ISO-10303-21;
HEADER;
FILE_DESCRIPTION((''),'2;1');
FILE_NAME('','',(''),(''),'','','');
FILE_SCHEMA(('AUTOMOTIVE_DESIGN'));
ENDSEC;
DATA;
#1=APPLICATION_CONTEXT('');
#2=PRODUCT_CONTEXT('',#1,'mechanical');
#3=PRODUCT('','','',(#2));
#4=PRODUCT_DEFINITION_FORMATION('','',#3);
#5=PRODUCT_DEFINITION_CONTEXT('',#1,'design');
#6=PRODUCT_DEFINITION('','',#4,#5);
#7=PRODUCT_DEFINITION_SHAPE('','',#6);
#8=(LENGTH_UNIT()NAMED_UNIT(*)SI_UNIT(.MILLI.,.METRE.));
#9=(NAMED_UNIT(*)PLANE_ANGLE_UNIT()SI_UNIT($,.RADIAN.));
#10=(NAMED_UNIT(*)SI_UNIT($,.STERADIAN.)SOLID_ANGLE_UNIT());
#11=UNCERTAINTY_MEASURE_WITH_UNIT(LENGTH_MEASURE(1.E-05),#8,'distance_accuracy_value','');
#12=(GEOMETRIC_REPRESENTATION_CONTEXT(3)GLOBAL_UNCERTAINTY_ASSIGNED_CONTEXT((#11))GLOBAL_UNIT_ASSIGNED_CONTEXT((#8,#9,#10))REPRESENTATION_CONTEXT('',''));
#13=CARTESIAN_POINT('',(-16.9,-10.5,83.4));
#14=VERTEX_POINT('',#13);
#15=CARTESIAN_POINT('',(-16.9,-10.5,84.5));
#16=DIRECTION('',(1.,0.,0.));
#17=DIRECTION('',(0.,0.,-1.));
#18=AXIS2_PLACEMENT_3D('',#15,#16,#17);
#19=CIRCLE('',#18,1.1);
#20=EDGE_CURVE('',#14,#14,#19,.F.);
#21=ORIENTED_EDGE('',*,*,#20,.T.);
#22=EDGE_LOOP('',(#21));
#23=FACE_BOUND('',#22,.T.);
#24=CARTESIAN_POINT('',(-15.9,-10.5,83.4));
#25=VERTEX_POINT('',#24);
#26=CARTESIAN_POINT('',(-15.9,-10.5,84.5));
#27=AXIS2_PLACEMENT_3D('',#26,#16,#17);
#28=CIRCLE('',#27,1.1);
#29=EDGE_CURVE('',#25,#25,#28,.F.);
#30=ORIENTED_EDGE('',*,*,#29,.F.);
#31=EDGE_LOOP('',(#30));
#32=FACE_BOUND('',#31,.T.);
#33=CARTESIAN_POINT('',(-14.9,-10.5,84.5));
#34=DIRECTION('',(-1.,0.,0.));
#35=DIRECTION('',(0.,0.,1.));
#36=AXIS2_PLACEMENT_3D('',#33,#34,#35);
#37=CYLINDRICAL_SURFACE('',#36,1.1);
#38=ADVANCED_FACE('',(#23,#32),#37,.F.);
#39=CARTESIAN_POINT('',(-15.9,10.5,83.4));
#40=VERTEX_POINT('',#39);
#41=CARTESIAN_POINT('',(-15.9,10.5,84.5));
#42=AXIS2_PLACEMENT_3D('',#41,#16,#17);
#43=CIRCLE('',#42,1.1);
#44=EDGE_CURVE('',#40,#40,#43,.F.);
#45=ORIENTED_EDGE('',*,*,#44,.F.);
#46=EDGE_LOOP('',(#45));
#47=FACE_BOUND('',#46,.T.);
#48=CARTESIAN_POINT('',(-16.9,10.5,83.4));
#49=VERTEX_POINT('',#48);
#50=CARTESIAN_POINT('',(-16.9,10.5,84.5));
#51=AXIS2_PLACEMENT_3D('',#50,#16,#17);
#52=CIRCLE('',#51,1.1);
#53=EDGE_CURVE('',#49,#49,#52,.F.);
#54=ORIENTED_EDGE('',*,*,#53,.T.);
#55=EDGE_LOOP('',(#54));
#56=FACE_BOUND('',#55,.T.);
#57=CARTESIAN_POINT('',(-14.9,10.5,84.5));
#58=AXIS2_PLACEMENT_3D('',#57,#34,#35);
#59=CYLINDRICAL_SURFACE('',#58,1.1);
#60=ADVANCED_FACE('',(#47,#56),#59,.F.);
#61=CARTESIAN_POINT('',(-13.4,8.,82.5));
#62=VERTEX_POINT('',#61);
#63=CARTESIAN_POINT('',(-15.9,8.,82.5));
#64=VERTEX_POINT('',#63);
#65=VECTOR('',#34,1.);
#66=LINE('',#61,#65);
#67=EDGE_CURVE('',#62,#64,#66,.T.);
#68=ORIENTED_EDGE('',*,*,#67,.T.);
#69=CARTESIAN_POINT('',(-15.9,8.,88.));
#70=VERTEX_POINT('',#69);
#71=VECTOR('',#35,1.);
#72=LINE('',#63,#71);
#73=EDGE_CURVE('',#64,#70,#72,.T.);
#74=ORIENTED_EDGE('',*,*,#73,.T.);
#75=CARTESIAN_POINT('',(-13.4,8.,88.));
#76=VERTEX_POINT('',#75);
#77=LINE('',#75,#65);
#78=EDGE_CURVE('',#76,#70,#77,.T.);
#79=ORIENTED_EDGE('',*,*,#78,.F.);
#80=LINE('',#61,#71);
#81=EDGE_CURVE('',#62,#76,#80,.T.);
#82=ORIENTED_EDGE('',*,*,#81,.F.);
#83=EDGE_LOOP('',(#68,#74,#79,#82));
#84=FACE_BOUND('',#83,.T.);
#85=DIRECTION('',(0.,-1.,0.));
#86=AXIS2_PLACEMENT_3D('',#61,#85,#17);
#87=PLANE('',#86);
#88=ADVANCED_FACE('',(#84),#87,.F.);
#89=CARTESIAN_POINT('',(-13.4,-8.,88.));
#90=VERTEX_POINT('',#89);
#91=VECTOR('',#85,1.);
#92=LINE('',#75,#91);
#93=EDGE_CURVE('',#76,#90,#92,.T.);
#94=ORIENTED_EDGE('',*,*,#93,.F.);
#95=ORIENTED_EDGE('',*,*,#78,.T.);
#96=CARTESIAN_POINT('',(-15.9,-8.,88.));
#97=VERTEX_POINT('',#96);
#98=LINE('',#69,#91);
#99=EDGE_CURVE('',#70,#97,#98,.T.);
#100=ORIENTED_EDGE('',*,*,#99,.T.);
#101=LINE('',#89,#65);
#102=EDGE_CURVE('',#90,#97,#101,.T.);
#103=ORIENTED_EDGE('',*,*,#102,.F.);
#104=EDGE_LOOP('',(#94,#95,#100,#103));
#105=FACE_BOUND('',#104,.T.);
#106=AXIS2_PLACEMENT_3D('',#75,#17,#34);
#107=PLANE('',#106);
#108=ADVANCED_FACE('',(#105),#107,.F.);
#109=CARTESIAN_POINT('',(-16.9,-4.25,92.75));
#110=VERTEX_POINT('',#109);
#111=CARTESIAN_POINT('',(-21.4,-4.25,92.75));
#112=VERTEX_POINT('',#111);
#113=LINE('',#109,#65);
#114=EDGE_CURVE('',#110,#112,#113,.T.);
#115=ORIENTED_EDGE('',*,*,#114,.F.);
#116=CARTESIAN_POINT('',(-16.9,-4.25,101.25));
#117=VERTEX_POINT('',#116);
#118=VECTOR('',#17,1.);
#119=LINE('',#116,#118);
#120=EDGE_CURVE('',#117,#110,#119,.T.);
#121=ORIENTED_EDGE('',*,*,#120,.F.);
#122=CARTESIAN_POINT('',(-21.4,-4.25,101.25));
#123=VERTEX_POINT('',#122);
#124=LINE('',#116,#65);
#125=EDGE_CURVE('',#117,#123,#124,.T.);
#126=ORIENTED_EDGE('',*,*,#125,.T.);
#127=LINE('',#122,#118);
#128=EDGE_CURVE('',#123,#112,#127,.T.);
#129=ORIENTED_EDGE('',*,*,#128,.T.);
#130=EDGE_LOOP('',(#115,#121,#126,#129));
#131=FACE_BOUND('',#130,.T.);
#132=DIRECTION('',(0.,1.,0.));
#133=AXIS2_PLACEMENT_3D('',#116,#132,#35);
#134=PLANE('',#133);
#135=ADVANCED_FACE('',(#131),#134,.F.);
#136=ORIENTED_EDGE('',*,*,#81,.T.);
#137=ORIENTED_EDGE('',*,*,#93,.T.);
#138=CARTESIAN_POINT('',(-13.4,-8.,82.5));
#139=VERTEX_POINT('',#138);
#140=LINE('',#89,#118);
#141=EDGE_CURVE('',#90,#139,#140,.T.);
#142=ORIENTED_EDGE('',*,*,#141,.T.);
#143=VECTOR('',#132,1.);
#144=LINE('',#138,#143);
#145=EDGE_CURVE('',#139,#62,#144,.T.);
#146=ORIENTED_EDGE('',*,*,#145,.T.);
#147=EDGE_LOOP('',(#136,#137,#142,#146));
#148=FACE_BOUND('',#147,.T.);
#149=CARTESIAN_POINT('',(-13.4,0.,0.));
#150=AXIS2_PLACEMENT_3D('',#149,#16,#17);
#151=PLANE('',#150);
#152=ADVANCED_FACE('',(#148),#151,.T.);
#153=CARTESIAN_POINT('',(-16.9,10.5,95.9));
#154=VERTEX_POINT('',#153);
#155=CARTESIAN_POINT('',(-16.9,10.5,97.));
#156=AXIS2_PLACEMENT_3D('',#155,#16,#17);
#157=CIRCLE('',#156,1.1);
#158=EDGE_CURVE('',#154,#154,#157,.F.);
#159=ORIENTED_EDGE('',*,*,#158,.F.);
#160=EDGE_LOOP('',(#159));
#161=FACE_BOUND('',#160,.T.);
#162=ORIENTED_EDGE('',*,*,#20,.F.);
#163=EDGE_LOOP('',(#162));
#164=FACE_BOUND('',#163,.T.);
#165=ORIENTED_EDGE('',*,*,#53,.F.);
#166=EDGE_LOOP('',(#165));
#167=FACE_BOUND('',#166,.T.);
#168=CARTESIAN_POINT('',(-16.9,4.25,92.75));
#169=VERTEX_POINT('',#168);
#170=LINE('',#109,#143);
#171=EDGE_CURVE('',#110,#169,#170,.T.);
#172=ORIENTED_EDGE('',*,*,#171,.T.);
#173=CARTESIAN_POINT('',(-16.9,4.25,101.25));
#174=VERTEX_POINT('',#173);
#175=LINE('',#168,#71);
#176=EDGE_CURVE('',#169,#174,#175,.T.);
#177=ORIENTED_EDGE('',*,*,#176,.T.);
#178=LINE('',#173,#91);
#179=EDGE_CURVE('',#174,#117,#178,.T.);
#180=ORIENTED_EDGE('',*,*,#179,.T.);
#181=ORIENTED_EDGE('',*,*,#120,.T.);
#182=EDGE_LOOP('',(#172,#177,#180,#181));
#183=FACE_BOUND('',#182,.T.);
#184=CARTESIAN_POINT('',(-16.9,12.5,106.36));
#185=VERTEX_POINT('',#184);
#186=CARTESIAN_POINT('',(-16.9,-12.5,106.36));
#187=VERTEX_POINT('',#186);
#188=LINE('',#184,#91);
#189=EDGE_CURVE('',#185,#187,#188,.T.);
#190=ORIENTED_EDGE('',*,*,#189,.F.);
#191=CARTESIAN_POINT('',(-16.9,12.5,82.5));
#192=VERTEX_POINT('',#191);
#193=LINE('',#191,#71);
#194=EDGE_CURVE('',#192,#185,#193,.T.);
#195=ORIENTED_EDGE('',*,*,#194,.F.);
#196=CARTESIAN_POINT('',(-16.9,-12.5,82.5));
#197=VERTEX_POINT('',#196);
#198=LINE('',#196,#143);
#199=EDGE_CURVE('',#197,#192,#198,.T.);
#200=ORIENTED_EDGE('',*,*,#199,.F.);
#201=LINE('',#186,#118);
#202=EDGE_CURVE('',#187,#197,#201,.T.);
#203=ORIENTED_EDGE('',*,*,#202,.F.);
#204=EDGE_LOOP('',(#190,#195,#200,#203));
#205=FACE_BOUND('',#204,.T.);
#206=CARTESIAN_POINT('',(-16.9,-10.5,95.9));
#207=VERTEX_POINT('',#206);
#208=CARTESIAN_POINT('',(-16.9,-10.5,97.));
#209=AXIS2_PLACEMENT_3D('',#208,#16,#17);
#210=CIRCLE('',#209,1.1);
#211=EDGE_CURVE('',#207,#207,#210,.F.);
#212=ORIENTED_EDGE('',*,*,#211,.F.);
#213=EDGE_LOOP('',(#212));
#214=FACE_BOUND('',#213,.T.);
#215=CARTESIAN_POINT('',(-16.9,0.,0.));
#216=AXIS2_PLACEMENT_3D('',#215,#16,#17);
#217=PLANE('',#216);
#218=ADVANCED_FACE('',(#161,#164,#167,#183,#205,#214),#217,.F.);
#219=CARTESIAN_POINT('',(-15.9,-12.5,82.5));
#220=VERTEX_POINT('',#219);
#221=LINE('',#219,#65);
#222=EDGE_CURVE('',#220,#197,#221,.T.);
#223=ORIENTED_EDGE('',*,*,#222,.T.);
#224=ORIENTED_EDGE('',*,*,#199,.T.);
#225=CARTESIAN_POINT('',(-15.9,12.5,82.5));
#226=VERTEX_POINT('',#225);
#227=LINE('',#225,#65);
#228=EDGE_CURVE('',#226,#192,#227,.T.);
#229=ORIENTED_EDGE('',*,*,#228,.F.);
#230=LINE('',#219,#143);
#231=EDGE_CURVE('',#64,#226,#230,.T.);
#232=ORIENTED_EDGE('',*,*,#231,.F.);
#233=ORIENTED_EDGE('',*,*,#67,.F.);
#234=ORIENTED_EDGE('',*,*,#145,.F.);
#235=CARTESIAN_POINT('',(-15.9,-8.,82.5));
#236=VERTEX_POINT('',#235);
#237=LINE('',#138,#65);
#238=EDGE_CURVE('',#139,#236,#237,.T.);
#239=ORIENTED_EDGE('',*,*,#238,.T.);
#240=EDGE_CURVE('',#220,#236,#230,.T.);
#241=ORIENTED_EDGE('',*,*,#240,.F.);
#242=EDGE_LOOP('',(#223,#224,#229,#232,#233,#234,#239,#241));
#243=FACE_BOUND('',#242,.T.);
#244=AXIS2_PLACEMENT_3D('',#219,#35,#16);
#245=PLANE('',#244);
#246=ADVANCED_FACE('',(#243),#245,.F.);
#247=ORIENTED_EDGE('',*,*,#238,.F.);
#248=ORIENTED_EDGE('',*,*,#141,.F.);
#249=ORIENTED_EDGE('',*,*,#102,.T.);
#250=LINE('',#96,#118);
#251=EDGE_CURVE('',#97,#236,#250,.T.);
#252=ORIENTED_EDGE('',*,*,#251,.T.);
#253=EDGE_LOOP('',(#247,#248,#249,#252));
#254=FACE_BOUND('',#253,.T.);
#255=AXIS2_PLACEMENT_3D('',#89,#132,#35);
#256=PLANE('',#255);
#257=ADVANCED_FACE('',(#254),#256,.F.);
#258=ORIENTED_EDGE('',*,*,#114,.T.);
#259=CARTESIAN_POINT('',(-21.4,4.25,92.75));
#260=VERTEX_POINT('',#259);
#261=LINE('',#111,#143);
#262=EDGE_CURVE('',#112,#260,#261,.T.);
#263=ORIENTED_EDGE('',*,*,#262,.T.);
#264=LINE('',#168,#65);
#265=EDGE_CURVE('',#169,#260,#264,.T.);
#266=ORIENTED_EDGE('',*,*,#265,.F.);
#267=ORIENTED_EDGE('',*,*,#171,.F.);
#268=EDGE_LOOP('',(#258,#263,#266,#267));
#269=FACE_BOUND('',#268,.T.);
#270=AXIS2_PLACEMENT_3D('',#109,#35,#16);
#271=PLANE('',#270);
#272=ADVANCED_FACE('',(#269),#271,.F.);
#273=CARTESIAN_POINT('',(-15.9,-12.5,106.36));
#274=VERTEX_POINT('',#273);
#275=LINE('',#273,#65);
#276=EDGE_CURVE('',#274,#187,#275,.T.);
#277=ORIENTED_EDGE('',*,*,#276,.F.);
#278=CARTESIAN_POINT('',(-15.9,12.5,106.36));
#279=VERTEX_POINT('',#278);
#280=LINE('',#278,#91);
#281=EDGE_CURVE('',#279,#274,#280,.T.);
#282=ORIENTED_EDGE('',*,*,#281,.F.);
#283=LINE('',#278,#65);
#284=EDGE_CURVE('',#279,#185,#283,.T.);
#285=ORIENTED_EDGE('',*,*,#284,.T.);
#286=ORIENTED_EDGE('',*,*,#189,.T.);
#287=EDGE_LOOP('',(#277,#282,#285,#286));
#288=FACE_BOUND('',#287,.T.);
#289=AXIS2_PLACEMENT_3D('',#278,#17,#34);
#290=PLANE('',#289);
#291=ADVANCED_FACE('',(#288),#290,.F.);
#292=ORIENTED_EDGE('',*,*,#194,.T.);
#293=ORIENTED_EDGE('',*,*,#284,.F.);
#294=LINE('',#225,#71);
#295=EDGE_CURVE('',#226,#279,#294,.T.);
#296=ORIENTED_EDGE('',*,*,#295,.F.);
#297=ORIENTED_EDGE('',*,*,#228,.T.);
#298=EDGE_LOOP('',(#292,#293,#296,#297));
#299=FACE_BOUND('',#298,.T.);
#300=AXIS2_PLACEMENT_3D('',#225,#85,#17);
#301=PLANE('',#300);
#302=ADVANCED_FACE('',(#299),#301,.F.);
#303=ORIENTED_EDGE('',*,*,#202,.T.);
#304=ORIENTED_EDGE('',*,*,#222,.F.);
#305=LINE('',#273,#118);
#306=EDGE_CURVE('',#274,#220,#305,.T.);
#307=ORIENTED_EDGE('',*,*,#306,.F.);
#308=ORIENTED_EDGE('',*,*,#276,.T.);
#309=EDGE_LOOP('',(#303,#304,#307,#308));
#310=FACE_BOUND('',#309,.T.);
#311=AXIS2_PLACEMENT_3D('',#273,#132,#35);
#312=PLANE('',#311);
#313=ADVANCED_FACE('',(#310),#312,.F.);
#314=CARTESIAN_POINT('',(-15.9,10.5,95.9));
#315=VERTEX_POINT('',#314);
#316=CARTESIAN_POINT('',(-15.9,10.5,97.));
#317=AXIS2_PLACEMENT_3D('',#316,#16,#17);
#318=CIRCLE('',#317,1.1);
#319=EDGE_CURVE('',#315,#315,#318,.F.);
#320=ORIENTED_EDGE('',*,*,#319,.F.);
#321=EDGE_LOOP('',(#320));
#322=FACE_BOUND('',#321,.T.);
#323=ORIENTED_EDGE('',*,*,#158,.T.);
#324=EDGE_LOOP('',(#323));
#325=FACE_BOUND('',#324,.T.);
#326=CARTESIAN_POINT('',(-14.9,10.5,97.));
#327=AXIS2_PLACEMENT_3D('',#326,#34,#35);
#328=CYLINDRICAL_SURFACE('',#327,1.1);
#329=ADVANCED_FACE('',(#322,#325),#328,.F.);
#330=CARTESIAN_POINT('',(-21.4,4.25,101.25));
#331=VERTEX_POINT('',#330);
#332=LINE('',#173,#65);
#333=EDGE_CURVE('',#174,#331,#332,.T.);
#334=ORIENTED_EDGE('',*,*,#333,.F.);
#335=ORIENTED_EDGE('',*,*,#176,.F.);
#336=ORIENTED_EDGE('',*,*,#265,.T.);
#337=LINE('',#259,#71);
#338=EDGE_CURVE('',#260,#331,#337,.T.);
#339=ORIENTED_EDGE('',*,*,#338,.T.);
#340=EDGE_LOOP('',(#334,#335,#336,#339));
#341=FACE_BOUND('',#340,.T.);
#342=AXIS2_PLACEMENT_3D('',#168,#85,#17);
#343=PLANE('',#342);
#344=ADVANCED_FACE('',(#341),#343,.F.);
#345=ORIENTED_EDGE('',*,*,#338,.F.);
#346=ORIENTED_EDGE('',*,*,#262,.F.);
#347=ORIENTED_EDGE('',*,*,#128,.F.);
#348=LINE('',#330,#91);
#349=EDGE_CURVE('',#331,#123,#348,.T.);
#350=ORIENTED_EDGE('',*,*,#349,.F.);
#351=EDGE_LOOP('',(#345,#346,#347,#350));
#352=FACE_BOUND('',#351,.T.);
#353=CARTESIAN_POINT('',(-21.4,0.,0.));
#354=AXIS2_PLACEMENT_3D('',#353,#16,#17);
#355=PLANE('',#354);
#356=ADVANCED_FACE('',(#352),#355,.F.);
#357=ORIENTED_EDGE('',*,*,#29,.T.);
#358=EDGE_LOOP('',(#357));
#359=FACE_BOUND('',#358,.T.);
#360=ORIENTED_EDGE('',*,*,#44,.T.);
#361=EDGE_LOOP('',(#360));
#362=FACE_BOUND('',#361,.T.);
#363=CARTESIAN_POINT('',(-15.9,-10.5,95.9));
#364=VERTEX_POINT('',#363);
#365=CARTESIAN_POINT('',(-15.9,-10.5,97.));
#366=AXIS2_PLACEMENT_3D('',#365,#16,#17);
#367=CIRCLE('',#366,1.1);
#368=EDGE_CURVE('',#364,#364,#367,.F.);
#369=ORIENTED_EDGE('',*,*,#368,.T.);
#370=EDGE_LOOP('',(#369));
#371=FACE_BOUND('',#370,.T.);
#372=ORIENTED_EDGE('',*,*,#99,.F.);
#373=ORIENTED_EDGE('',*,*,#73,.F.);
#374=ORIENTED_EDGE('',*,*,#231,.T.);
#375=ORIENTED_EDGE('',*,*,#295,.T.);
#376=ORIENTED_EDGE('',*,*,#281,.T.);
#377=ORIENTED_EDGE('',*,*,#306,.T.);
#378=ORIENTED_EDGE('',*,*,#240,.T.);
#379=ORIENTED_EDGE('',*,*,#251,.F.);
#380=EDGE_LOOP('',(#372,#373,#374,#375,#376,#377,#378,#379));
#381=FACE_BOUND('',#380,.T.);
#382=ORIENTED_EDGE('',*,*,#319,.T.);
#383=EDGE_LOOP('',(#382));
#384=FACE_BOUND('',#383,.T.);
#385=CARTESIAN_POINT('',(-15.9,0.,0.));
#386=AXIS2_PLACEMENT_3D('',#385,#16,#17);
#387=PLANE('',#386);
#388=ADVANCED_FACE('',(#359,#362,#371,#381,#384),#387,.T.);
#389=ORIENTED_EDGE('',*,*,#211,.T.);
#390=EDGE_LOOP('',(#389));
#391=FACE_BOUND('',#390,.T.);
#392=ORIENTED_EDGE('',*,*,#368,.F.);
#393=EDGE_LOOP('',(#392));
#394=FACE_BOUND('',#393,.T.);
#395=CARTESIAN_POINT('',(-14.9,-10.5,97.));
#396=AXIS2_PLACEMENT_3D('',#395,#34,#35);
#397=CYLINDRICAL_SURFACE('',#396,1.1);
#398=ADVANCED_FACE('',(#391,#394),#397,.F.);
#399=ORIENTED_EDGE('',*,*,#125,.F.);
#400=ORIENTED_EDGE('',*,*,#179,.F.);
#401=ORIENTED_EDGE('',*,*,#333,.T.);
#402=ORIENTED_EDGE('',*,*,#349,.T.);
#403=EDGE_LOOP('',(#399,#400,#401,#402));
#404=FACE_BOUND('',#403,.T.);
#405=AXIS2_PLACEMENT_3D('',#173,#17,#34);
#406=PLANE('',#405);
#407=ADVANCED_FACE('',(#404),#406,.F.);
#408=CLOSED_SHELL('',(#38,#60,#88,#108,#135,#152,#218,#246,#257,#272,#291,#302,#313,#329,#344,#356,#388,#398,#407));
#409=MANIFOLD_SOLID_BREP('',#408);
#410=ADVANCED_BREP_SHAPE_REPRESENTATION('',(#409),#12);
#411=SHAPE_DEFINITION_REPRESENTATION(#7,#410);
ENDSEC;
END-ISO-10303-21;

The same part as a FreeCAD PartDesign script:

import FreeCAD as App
import Part
import Sketcher
Q = App.Units.Quantity


def add_polygon(sketch, points):
    """Adds a closed chain of lines whose ends are joined by coincident constraints."""
    first, n = sketch.GeometryCount, len(points)
    for a, b in zip(points, points[1:] + points[:1]):
        sketch.addGeometry(Part.LineSegment(App.Vector(*a, 0), App.Vector(*b, 0)), False)
    for i in range(n):
        sketch.addConstraint(Sketcher.Constraint("Coincident", first + i, 2, first + (i + 1) % n, 1))

doc = App.newDocument("Part")
params = doc.addObject("Spreadsheet::Sheet", "Params")
for row, (alias, value) in enumerate([
    ("sketch1_width", "25 mm"),
    ("sketch1_height", "23.86 mm"),
    ("pad1_length", "1 mm"),
    ("sketch2_diameter", "2.2 mm"),
    ("pocket1_length", "3 mm"),
    ("sketch3_width", "8.5 mm"),
    ("pad2_length", "4.5 mm"),
    ("sketch4_width", "16 mm"),
    ("sketch4_height", "5.5 mm"),
    ("pad3_length", "2.5 mm"),
], start=1):
    params.set(f"A{row}", alias)
    params.set(f"B{row}", "=" + value)
    params.setAlias(f"B{row}", alias)

body = doc.addObject("PartDesign::Body", "Body")

# Sketch on YZ plane
sketch1 = body.newObject("Sketcher::SketchObject", "Sketch")
sketch1.AttachmentSupport = (doc.getObject("YZ_Plane"), [""])
sketch1.MapMode = "FlatFace"
sketch1.AttachmentOffset = App.Placement(App.Vector(0, 0, -16.9), App.Rotation())
add_polygon(sketch1, [(12, 106), (-12, 106), (-12, 82), (12, 82)])  # lines 0-3
sketch1.addConstraint(Sketcher.Constraint("Horizontal", 0))
sketch1.addConstraint(Sketcher.Constraint("Vertical", 1))
sketch1.addConstraint(Sketcher.Constraint("Horizontal", 2))
sketch1.addConstraint(Sketcher.Constraint("Vertical", 3))
sketch1.addConstraint(Sketcher.Constraint("DistanceX", 0, 2, 0, 1, Q("25 mm")))
sketch1.addConstraint(Sketcher.Constraint("DistanceY", 1, 2, 1, 1, Q("23.86 mm")))
sketch1.addConstraint(Sketcher.Constraint("DistanceX", 0, 2, -1, 1, Q("12.5 mm")))
sketch1.addConstraint(Sketcher.Constraint("DistanceY", -1, 1, 1, 2, Q("82.5 mm")))
sketch1.setExpression("Constraints[8]", "Params.sketch1_width")
sketch1.setExpression("Constraints[9]", "Params.sketch1_height")
pad1 = body.newObject("PartDesign::Pad", "Pad")
pad1.Profile = sketch1
pad1.setExpression("Length", "Params.pad1_length")

# Sketch on YZ plane
sketch2 = body.newObject("Sketcher::SketchObject", "Sketch001")
sketch2.AttachmentSupport = (doc.getObject("YZ_Plane"), [""])
sketch2.MapMode = "FlatFace"
sketch2.AttachmentOffset = App.Placement(App.Vector(0, 0, -17.9), App.Rotation())
sketch2.addGeometry(Part.Circle(App.Vector(-10.5, 97, 0), App.Vector(0, 0, 1), 1.1), False)
sketch2.addGeometry(Part.Circle(App.Vector(-10.5, 84.5, 0), App.Vector(0, 0, 1), 1.1), False)
sketch2.addGeometry(Part.Circle(App.Vector(10.5, 97, 0), App.Vector(0, 0, 1), 1.1), False)
sketch2.addGeometry(Part.Circle(App.Vector(10.5, 84.5, 0), App.Vector(0, 0, 1), 1.1), False)
sketch2.addConstraint(Sketcher.Constraint("Equal", 0, 1))
sketch2.addConstraint(Sketcher.Constraint("Equal", 1, 2))
sketch2.addConstraint(Sketcher.Constraint("Equal", 2, 3))
sketch2.addConstraint(Sketcher.Constraint("Symmetric", 0, 3, 2, 3, -2))
sketch2.addConstraint(Sketcher.Constraint("Symmetric", 1, 3, 3, 3, -2))
sketch2.addConstraint(Sketcher.Constraint("Vertical", 0, 3, 1, 3))
sketch2.addConstraint(Sketcher.Constraint("Diameter", 0, Q("2.2 mm")))
sketch2.addConstraint(Sketcher.Constraint("DistanceY", -1, 1, 0, 3, Q("97 mm")))
sketch2.addConstraint(Sketcher.Constraint("DistanceX", 0, 3, 2, 3, Q("21 mm")))
sketch2.addConstraint(Sketcher.Constraint("DistanceY", -1, 1, 1, 3, Q("84.5 mm")))
sketch2.setExpression("Constraints[6]", "Params.sketch2_diameter")
pocket1 = body.newObject("PartDesign::Pocket", "Pocket")
pocket1.Profile = sketch2
pocket1.setExpression("Length", "Params.pocket1_length")
pocket1.Reversed = True

# Sketch on YZ plane
sketch3 = body.newObject("Sketcher::SketchObject", "Sketch002")
sketch3.AttachmentSupport = (doc.getObject("YZ_Plane"), [""])
sketch3.MapMode = "FlatFace"
sketch3.AttachmentOffset = App.Placement(App.Vector(0, 0, -21.4), App.Rotation())
add_polygon(sketch3, [(4, 101), (-4, 101), (-4, 93), (4, 93)])  # lines 0-3
sketch3.addConstraint(Sketcher.Constraint("Horizontal", 0))
sketch3.addConstraint(Sketcher.Constraint("Vertical", 1))
sketch3.addConstraint(Sketcher.Constraint("Horizontal", 2))
sketch3.addConstraint(Sketcher.Constraint("Vertical", 3))
sketch3.addConstraint(Sketcher.Constraint("Equal", 2, 1))
sketch3.addConstraint(Sketcher.Constraint("DistanceX", 0, 2, 0, 1, Q("8.5 mm")))
sketch3.addConstraint(Sketcher.Constraint("DistanceX", 0, 2, -1, 1, Q("4.25 mm")))
sketch3.addConstraint(Sketcher.Constraint("DistanceY", -1, 1, 0, 2, Q("101.25 mm")))
sketch3.setExpression("Constraints[9]", "Params.sketch3_width")
pad2 = body.newObject("PartDesign::Pad", "Pad001")
pad2.Profile = sketch3
pad2.setExpression("Length", "Params.pad2_length")

# Sketch on YZ plane
sketch4 = body.newObject("Sketcher::SketchObject", "Sketch003")
sketch4.AttachmentSupport = (doc.getObject("YZ_Plane"), [""])
sketch4.MapMode = "FlatFace"
sketch4.AttachmentOffset = App.Placement(App.Vector(0, 0, -15.9), App.Rotation())
add_polygon(sketch4, [(8, 88), (-8, 88), (-8, 82), (8, 82)])  # lines 0-3
sketch4.addConstraint(Sketcher.Constraint("Horizontal", 0))
sketch4.addConstraint(Sketcher.Constraint("Vertical", 1))
sketch4.addConstraint(Sketcher.Constraint("Horizontal", 2))
sketch4.addConstraint(Sketcher.Constraint("Vertical", 3))
sketch4.addConstraint(Sketcher.Constraint("DistanceX", 0, 2, 0, 1, Q("16 mm")))
sketch4.addConstraint(Sketcher.Constraint("DistanceY", 1, 2, 1, 1, Q("5.5 mm")))
sketch4.addConstraint(Sketcher.Constraint("DistanceX", 0, 2, -1, 1, Q("8 mm")))
sketch4.addConstraint(Sketcher.Constraint("DistanceY", -1, 1, 0, 2, Q("88 mm")))
sketch4.setExpression("Constraints[8]", "Params.sketch4_width")
sketch4.setExpression("Constraints[9]", "Params.sketch4_height")
pad3 = body.newObject("PartDesign::Pad", "Pad002")
pad3.Profile = sketch4
pad3.setExpression("Length", "Params.pad3_length")

doc.recompute()
